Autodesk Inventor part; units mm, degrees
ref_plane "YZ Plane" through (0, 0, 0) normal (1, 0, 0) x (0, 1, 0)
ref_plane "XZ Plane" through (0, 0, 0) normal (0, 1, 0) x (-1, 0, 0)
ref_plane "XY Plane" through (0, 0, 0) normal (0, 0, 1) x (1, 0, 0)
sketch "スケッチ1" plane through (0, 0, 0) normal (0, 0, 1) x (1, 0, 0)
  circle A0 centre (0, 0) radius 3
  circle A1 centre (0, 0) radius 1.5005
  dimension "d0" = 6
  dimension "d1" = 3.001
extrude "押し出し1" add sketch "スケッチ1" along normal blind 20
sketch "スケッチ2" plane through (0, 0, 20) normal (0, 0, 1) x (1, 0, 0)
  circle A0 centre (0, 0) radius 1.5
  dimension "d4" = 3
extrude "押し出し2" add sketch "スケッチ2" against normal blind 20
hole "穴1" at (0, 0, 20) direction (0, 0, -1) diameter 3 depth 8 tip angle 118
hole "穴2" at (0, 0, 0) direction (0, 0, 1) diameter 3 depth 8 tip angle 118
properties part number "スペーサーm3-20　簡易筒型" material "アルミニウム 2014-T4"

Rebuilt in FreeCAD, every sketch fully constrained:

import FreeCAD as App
import Part
import Sketcher

doc = App.newDocument("Part")
params = doc.addObject("Spreadsheet::Sheet", "Params")
for row, (alias, value) in enumerate([
    ("sketch1_diameter", "6 mm"),
    ("pad1_length", "20 mm"),
    ("sketch2_diameter", "3 mm"),
    ("pad2_length", "20 mm"),
    ("sketch3_diameter", "3 mm"),
    ("hole_diameter", "3 mm"),
    ("hole_depth", "8 mm"),
    ("sketch4_diameter", "3 mm"),
    ("hole2_diameter", "3 mm"),
    ("hole2_depth", "8 mm"),
], start=1):
    params.set(f"A{row}", alias)
    params.set(f"B{row}", "=" + value)
    params.setAlias(f"B{row}", alias)

body = doc.addObject("PartDesign::Body", "Body")
body.AllowCompound = True

# Sketch on XY plane
sketch1 = body.newObject("Sketcher::SketchObject", "Sketch")
sketch1.AttachmentSupport = (doc.getObject("XY_Plane"), [""])
sketch1.MapMode = "FlatFace"
sketch1.addGeometry([
    Part.Circle(App.Vector(0, 0, 0), App.Vector(0, 0, 1), 3),
    Part.Circle(App.Vector(0, 0, 0), App.Vector(0, 0, 1), 1.5),
], False)
sketch1.addConstraint([
    Sketcher.Constraint("Coincident", 0, 3, -1, 1),
    Sketcher.Constraint("Coincident", 1, 3, -1, 1),
    Sketcher.Constraint("Diameter", 0, 6.0),
    Sketcher.Constraint("Diameter", 1, 3.001),
])
sketch1.setExpression("Constraints[2]", "Params.sketch1_diameter")
pad1 = body.newObject("PartDesign::Pad", "Pad")
pad1.Profile = sketch1
pad1.setExpression("Length", "Params.pad1_length")

# Sketch on XY plane
sketch2 = body.newObject("Sketcher::SketchObject", "Sketch001")
sketch2.AttachmentSupport = (doc.getObject("XY_Plane"), [""])
sketch2.MapMode = "FlatFace"
sketch2.AttachmentOffset = App.Placement(App.Vector(0, 0, 20), App.Rotation())
sketch2.addGeometry(Part.Circle(App.Vector(0, 0, 0), App.Vector(0, 0, 1), 1.5), False)
sketch2.addConstraint([
    Sketcher.Constraint("Coincident", 0, 3, -1, 1),
    Sketcher.Constraint("Diameter", 0, 3.0),
])
sketch2.setExpression("Constraints[1]", "Params.sketch2_diameter")
pad2 = body.newObject("PartDesign::Pad", "Pad001")
pad2.Profile = sketch2
pad2.setExpression("Length", "Params.pad2_length")
pad2.Reversed = True

# Sketch on XY plane
sketch3 = body.newObject("Sketcher::SketchObject", "Sketch002")
sketch3.AttachmentSupport = (doc.getObject("XY_Plane"), [""])
sketch3.MapMode = "FlatFace"
sketch3.AttachmentOffset = App.Placement(App.Vector(0, 0, 20), App.Rotation())
sketch3.addGeometry(Part.Circle(App.Vector(0, 0, 0), App.Vector(0, 0, 1), 1.5), False)
sketch3.addConstraint([
    Sketcher.Constraint("Coincident", 0, 3, -1, 1),
    Sketcher.Constraint("Diameter", 0, 3.0),
])
sketch3.setExpression("Constraints[1]", "Params.sketch3_diameter")
doc.recompute()
hole = body.newObject("PartDesign::Hole", "Hole")
hole.Profile = sketch3
hole.ThreadType = "None"
hole.setExpression("Diameter", "Params.hole_diameter")
hole.DepthType = "Dimension"
hole.setExpression("Depth", "Params.hole_depth")
hole.DrillPoint = "Angled"
hole.DrillPointAngle = 118

# Sketch on XY plane
sketch4 = body.newObject("Sketcher::SketchObject", "Sketch003")
sketch4.AttachmentSupport = (doc.getObject("XY_Plane"), [""])
sketch4.MapMode = "FlatFace"
sketch4.addGeometry(Part.Circle(App.Vector(0, 0, 0), App.Vector(0, 0, 1), 1.5), False)
sketch4.addConstraint([
    Sketcher.Constraint("Coincident", 0, 3, -1, 1),
    Sketcher.Constraint("Diameter", 0, 3.0),
])
sketch4.setExpression("Constraints[1]", "Params.sketch4_diameter")
doc.recompute()
hole2 = body.newObject("PartDesign::Hole", "Hole001")
hole2.Profile = sketch4
hole2.ThreadType = "None"
hole2.setExpression("Diameter", "Params.hole2_diameter")
hole2.DepthType = "Dimension"
hole2.setExpression("Depth", "Params.hole2_depth")
hole2.DrillPoint = "Angled"
hole2.DrillPointAngle = 118
hole2.Reversed = True

doc.recompute()
